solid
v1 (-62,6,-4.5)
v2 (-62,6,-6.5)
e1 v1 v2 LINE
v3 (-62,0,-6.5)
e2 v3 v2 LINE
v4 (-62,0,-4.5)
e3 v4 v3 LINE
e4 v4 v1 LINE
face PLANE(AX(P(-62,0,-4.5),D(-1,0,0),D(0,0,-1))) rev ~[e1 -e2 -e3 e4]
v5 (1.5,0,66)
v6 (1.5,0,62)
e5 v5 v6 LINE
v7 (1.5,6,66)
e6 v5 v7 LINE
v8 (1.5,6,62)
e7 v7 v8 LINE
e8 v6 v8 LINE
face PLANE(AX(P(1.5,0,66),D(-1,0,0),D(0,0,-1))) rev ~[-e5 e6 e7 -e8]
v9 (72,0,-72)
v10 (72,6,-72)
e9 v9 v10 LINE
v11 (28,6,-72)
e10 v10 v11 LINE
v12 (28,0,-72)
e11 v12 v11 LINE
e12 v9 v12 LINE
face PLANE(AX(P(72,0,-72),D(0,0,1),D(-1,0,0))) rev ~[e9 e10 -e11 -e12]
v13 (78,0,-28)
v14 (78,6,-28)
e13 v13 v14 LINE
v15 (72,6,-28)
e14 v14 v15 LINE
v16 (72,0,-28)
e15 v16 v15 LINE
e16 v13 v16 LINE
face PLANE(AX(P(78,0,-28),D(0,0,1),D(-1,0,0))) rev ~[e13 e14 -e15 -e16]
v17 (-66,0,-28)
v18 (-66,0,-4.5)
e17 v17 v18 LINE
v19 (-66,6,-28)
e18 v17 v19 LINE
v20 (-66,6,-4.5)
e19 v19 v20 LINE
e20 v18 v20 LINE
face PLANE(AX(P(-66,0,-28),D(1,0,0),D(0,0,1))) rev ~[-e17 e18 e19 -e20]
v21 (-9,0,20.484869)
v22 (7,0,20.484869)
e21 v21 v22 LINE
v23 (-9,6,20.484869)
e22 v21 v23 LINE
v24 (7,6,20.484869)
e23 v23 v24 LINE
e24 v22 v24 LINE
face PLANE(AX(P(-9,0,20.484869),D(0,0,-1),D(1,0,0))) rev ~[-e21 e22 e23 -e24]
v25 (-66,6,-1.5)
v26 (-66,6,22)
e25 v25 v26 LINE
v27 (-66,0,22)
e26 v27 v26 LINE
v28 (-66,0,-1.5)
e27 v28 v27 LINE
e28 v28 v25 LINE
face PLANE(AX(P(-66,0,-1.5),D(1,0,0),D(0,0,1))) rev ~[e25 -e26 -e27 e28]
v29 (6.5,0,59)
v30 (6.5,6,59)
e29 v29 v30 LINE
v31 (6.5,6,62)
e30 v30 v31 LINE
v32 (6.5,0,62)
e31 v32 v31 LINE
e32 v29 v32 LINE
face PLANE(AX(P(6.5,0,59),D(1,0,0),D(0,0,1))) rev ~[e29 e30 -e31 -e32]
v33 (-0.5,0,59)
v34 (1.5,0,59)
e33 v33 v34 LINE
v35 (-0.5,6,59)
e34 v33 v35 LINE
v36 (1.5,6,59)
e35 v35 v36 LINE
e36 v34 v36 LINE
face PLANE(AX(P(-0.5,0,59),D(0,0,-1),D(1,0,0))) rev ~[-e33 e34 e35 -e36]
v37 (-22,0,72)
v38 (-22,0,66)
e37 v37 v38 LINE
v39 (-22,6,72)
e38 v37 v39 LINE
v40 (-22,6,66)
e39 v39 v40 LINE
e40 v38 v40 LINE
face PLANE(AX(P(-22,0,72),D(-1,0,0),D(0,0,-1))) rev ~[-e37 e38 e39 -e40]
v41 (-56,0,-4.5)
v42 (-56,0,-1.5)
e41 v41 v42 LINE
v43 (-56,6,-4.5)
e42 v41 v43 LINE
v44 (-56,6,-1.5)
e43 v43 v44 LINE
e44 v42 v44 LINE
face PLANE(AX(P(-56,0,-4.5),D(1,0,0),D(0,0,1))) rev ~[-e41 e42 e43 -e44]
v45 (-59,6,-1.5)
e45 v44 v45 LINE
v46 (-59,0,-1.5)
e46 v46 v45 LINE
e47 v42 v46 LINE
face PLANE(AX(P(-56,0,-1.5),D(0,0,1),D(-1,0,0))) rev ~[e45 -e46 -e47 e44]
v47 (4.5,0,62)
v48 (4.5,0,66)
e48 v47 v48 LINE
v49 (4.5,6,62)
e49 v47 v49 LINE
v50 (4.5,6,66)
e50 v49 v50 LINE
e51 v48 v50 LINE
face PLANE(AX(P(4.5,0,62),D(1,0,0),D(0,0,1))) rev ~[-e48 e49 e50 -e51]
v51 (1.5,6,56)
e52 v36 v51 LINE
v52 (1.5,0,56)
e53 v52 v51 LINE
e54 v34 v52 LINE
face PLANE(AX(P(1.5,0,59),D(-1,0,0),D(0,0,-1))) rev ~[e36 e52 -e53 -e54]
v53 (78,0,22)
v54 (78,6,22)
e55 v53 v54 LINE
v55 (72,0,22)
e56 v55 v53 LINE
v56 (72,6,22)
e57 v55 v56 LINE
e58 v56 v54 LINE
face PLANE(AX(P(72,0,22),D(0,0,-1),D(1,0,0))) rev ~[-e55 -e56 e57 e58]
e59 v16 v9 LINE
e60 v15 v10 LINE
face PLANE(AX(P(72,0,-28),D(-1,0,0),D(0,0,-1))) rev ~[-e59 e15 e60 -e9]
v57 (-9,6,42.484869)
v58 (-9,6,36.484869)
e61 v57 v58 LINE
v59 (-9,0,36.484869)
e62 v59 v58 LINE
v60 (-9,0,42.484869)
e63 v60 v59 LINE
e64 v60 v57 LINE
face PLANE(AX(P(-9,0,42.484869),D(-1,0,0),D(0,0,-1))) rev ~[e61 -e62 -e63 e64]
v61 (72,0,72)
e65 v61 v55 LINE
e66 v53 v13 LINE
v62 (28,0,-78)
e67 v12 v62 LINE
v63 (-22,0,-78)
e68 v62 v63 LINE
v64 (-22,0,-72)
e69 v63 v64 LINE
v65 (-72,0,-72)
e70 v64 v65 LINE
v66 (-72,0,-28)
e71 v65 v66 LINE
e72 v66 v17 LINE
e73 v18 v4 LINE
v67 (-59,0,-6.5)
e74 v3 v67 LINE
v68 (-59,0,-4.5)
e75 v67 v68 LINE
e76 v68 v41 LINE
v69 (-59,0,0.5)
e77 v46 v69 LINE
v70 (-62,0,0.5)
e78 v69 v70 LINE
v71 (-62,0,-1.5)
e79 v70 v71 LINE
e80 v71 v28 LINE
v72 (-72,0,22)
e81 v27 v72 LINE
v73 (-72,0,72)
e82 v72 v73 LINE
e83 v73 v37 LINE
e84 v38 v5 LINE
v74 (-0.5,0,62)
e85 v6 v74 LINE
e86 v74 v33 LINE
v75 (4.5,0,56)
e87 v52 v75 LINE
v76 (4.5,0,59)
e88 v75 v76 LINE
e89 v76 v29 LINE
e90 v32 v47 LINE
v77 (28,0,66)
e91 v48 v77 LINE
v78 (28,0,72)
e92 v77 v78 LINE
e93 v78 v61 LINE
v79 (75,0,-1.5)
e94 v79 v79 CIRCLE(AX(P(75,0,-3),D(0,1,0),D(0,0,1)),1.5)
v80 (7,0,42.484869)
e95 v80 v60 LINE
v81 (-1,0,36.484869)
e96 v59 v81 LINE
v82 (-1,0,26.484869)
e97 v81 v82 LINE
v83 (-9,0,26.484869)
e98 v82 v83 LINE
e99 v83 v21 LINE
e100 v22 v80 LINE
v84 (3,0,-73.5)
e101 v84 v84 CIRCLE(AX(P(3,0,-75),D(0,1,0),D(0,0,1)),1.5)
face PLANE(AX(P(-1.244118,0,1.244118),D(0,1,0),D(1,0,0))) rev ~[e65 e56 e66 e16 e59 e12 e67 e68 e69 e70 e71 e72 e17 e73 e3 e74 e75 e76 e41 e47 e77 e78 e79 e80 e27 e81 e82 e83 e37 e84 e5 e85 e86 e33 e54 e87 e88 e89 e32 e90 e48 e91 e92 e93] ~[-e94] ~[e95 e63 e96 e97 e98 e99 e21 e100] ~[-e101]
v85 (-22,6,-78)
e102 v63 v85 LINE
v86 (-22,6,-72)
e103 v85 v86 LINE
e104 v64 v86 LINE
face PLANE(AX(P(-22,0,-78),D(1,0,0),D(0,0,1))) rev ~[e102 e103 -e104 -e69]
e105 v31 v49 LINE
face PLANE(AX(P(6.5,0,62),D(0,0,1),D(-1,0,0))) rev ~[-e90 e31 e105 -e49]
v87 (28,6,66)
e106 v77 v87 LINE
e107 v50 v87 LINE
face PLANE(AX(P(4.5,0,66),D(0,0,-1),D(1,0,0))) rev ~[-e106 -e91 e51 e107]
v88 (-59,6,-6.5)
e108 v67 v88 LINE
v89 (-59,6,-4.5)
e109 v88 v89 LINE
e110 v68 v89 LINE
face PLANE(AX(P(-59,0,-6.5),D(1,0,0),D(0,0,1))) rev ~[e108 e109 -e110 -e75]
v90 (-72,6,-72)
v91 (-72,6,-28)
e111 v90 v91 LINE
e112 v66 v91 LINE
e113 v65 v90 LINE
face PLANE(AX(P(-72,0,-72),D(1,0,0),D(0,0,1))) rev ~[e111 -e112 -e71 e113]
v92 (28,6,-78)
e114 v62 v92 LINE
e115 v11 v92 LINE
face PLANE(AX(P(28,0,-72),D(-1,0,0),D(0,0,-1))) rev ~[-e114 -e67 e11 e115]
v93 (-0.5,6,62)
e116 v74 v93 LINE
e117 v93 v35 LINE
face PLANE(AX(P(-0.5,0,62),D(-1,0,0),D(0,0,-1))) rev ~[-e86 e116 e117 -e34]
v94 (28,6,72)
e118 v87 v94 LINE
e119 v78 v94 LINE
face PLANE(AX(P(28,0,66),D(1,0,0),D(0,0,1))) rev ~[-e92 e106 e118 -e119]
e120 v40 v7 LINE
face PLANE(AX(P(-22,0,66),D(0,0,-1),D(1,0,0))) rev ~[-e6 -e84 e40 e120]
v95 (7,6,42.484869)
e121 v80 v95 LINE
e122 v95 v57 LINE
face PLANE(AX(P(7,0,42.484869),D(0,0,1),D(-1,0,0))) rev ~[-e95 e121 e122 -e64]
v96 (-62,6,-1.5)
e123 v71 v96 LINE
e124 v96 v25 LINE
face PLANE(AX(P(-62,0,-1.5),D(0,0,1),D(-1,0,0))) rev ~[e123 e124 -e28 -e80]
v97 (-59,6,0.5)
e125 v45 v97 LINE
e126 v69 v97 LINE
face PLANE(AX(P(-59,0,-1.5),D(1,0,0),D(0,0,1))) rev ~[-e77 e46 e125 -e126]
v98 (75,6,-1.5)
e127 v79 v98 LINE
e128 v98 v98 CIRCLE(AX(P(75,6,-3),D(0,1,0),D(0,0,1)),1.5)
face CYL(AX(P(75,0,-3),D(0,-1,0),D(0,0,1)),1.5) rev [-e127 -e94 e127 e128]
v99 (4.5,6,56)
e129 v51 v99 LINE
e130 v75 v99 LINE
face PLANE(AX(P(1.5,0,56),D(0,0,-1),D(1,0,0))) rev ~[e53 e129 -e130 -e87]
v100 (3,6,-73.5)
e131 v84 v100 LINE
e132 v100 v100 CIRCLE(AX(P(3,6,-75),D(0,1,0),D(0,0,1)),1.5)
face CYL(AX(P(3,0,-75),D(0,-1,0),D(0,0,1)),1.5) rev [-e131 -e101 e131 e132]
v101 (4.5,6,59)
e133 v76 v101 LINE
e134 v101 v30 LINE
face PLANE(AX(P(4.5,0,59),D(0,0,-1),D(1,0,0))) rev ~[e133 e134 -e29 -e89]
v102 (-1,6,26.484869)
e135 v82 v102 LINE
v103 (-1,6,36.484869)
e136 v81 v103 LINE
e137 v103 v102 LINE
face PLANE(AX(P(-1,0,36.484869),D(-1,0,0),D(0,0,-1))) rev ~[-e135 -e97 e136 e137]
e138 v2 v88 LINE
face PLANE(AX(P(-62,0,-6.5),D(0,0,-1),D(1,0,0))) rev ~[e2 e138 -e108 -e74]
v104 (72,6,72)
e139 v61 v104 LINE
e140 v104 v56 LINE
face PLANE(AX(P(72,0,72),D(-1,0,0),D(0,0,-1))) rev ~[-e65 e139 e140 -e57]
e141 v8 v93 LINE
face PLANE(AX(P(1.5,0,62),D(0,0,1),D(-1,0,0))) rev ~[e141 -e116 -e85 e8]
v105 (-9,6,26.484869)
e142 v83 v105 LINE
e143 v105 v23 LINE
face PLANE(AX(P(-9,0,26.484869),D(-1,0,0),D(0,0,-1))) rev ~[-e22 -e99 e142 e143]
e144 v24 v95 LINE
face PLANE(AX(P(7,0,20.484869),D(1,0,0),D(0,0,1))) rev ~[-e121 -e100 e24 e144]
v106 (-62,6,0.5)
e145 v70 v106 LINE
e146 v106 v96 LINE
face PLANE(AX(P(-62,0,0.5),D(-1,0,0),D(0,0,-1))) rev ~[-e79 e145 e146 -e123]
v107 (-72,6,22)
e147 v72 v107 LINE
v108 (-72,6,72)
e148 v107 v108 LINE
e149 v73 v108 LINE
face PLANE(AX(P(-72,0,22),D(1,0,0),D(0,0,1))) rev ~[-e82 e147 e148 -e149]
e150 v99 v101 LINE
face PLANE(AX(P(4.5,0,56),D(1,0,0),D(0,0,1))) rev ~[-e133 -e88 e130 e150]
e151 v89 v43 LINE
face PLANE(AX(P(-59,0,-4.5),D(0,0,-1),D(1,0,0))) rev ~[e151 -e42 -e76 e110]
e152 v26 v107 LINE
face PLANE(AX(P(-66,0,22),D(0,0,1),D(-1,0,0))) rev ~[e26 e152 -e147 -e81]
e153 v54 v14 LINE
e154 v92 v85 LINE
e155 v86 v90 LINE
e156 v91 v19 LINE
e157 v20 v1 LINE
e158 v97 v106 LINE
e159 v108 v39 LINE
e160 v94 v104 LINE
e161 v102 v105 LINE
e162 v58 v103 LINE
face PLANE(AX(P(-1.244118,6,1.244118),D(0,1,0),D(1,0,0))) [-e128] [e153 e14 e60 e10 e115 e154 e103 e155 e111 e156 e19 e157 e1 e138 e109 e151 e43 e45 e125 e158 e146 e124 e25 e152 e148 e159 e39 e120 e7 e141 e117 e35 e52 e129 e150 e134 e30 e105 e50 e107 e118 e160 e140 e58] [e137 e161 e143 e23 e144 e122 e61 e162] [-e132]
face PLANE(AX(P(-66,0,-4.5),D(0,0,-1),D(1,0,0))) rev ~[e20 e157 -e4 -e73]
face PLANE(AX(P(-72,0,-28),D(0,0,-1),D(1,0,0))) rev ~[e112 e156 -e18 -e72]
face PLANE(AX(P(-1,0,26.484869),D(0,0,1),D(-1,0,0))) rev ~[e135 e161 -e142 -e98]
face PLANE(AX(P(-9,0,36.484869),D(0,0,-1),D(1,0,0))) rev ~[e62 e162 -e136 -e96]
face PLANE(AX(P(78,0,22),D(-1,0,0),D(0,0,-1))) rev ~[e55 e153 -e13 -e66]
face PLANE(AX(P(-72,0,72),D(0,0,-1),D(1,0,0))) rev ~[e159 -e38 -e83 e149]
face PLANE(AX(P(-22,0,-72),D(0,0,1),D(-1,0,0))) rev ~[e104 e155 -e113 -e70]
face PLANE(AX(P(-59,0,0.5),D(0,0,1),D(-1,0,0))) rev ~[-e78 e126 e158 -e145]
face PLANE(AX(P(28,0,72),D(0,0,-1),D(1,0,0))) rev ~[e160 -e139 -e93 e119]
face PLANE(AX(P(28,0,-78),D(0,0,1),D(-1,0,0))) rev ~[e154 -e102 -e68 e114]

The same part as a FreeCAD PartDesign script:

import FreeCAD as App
import Part
import Sketcher
from FreeCAD import Vector


def add_polygon(sketch, points):
    """Adds a closed chain of lines whose ends are joined by coincident constraints."""
    first, n = sketch.GeometryCount, len(points)
    for a, b in zip(points, points[1:] + points[:1]):
        sketch.addGeometry(Part.LineSegment(App.Vector(*a, 0), App.Vector(*b, 0)), False)
    for i in range(n):
        sketch.addConstraint(Sketcher.Constraint("Coincident", first + i, 2, first + (i + 1) % n, 1))

doc = App.newDocument("Part")
body = doc.addObject("PartDesign::Body", "Body")

# Sketch on XZ plane
sketch1 = doc.addObject("Sketcher::SketchObject", "Sketch")
body.addObject(sketch1)
sketch1.AttachmentSupport = (doc.XZ_Plane, [""])
sketch1.MapMode = "FlatFace"
add_polygon(sketch1, [(-72, -72), (-72, -28), (-66, -28), (-66, -4.5), (-62, -4.5), (-62, -6.5), (-59, -6.5), (-59, -4.5), (-56, -4.5), (-56, -1.5), (-59, -1.5), (-59, 0.5), (-62, 0.5), (-62, -1.5), (-66, -1.5), (-66, 22), (-72, 22), (-72, 72), (-22, 72), (-22, 66), (1.5, 66), (1.5, 62), (-0.5, 62), (-0.5, 59), (1.5, 59), (1.5, 56), (4.5, 56), (4.5, 59), (6.5, 59), (6.5, 62), (4.5, 62), (4.5, 66), (28, 66), (28, 72), (72, 72), (72, 22), (78, 22), (78, -28), (72, -28), (72, -72), (28, -72), (28, -78), (-22, -78), (-22, -72)])  # lines 0-43
add_polygon(sketch1, [(-9, 26.5), (-9, 20.5), (7, 20.5), (7, 42.5), (-9, 42.5), (-9, 36.5), (-1, 36.5), (-1, 26.5)])  # lines 44-51
sketch1.addGeometry(Part.Circle(Vector(75, -3, 0), Vector(0, 0, 1), 1.5), False)  # 52
sketch1.addGeometry(Part.Circle(Vector(3, -75, 0), Vector(0, 0, 1), 1.5), False)  # 53
sketch1.addConstraint([
    Sketcher.Constraint("Vertical", 0),
    Sketcher.Constraint("Horizontal", 1),
    Sketcher.Constraint("Vertical", 2),
    Sketcher.Constraint("Horizontal", 3),
    Sketcher.Constraint("Vertical", 4),
    Sketcher.Constraint("Horizontal", 5),
    Sketcher.Constraint("Vertical", 6),
    Sketcher.Constraint("Horizontal", 7),
    Sketcher.Constraint("Vertical", 8),
    Sketcher.Constraint("Horizontal", 9),
    Sketcher.Constraint("Vertical", 10),
    Sketcher.Constraint("Horizontal", 11),
    Sketcher.Constraint("Vertical", 12),
    Sketcher.Constraint("Horizontal", 13),
    Sketcher.Constraint("Vertical", 14),
    Sketcher.Constraint("Horizontal", 15),
    Sketcher.Constraint("Vertical", 16),
    Sketcher.Constraint("Horizontal", 17),
    Sketcher.Constraint("Vertical", 18),
    Sketcher.Constraint("Horizontal", 19),
    Sketcher.Constraint("Vertical", 20),
    Sketcher.Constraint("Horizontal", 21),
    Sketcher.Constraint("Vertical", 22),
    Sketcher.Constraint("Horizontal", 23),
    Sketcher.Constraint("Vertical", 24),
    Sketcher.Constraint("Horizontal", 25),
    Sketcher.Constraint("Vertical", 26),
    Sketcher.Constraint("Horizontal", 27),
    Sketcher.Constraint("Vertical", 28),
    Sketcher.Constraint("Horizontal", 29),
    Sketcher.Constraint("Vertical", 30),
    Sketcher.Constraint("Horizontal", 31),
    Sketcher.Constraint("Vertical", 32),
    Sketcher.Constraint("Horizontal", 33),
    Sketcher.Constraint("Vertical", 34),
    Sketcher.Constraint("Horizontal", 35),
    Sketcher.Constraint("Vertical", 36),
    Sketcher.Constraint("Horizontal", 37),
    Sketcher.Constraint("Vertical", 38),
    Sketcher.Constraint("Horizontal", 39),
    Sketcher.Constraint("Vertical", 40),
    Sketcher.Constraint("Horizontal", 41),
    Sketcher.Constraint("Vertical", 42),
    Sketcher.Constraint("Horizontal", 43),
    Sketcher.Constraint("Vertical", 44),
    Sketcher.Constraint("Horizontal", 45),
    Sketcher.Constraint("Vertical", 46),
    Sketcher.Constraint("Horizontal", 47),
    Sketcher.Constraint("Vertical", 48),
    Sketcher.Constraint("Horizontal", 49),
    Sketcher.Constraint("Vertical", 50),
    Sketcher.Constraint("Horizontal", 51),
    Sketcher.Constraint("Equal", 52, 53),
    Sketcher.Constraint("Symmetric", 16, 2, 38, 2, -1, 1),
    Sketcher.Constraint("Symmetric", 33, 2, 43, 2, -1, 1),
    Sketcher.Constraint("Symmetric", 16, 2, 33, 2, -2),
    Sketcher.Constraint("Horizontal", 3, 2, 6, 2),
    Sketcher.Constraint("Horizontal", 9, 2, 12, 2),
    Sketcher.Constraint("Horizontal", 23, 2, 26, 2),
    Sketcher.Constraint("Horizontal", 21, 2, 28, 2),
    Sketcher.Constraint("Horizontal", 19, 2, 30, 2),
    Sketcher.Constraint("Horizontal", 15, 2, 34, 2),
    Sketcher.Constraint("Horizontal", 1, 2, 36, 2),
    Sketcher.Constraint("Vertical", 6, 2, 9, 2),
    Sketcher.Constraint("Vertical", 4, 2, 11, 2),
    Sketcher.Constraint("Vertical", 2, 2, 13, 2),
    Sketcher.Constraint("Vertical", 20, 2, 23, 2),
    Sketcher.Constraint("Vertical", 26, 2, 29, 2),
    Sketcher.Constraint("Vertical", 32, 2, 39, 2),
    Sketcher.Constraint("Vertical", 18, 2, 41, 2),
    Sketcher.Constraint("Vertical", 44, 2, 47, 2),
    Sketcher.Constraint("Equal", 5, 7),
    Sketcher.Constraint("Equal", 11, 25),
    Sketcher.Constraint("Equal", 23, 27),
    Sketcher.Constraint("Equal", 19, 31),
    Sketcher.Constraint("Equal", 15, 35),
    Sketcher.Constraint("Equal", 17, 41),
    Sketcher.Constraint("Equal", 39, 0),
    Sketcher.Constraint("Equal", 31, 2),
    Sketcher.Constraint("Equal", 29, 4),
    Sketcher.Constraint("Equal", 25, 8),
    Sketcher.Constraint("Equal", 6, 10),
    Sketcher.Constraint("Equal", 2, 14),
    Sketcher.Constraint("Equal", 43, 16),
    Sketcher.Constraint("Equal", 37, 18),
    Sketcher.Constraint("Equal", 13, 20),
    Sketcher.Constraint("Equal", 8, 22),
    Sketcher.Constraint("Equal", 22, 24),
    Sketcher.Constraint("Equal", 32, 40),
    Sketcher.Constraint("Equal", 42, 44),
    Sketcher.Constraint("Equal", 44, 48),
    Sketcher.Constraint("Diameter", 52, 3.0),
    Sketcher.Constraint("DistanceX", 1, 1, 1, 2, 6.0),
    Sketcher.Constraint("DistanceX", 3, 1, 3, 2, 4.0),
    Sketcher.Constraint("DistanceX", 5, 1, 5, 2, 3.0),
    Sketcher.Constraint("DistanceX", 17, 1, 17, 2, 50.0),
    Sketcher.Constraint("DistanceX", 21, 2, 21, 1, 2.0),
    Sketcher.Constraint("DistanceX", 33, 1, 33, 2, 44.0),
    Sketcher.Constraint("DistanceX", 45, 1, 45, 2, 16.0),
    Sketcher.Constraint("DistanceX", 49, 1, 49, 2, 8.0),
    Sketcher.Constraint("DistanceY", 46, 1, 46, 2, 22.0),
    Sketcher.Constraint("DistanceX", -1, 1, 52, 3, 75.0),
    Sketcher.Constraint("DistanceY", 52, 3, -1, 1, 3.0),
    Sketcher.Constraint("DistanceX", -1, 1, 53, 3, 3.0),
    Sketcher.Constraint("DistanceY", 53, 3, -1, 1, 75.0),
    Sketcher.Constraint("DistanceX", 44, 2, -1, 1, 9.0),
    Sketcher.Constraint("DistanceY", -1, 1, 44, 2, 20.484869),
])
pad1 = doc.addObject("PartDesign::Pad", "Pad")
body.addObject(pad1)
pad1.Profile = sketch1
pad1.Length = 6
pad1.Reversed = True

doc.recompute()
